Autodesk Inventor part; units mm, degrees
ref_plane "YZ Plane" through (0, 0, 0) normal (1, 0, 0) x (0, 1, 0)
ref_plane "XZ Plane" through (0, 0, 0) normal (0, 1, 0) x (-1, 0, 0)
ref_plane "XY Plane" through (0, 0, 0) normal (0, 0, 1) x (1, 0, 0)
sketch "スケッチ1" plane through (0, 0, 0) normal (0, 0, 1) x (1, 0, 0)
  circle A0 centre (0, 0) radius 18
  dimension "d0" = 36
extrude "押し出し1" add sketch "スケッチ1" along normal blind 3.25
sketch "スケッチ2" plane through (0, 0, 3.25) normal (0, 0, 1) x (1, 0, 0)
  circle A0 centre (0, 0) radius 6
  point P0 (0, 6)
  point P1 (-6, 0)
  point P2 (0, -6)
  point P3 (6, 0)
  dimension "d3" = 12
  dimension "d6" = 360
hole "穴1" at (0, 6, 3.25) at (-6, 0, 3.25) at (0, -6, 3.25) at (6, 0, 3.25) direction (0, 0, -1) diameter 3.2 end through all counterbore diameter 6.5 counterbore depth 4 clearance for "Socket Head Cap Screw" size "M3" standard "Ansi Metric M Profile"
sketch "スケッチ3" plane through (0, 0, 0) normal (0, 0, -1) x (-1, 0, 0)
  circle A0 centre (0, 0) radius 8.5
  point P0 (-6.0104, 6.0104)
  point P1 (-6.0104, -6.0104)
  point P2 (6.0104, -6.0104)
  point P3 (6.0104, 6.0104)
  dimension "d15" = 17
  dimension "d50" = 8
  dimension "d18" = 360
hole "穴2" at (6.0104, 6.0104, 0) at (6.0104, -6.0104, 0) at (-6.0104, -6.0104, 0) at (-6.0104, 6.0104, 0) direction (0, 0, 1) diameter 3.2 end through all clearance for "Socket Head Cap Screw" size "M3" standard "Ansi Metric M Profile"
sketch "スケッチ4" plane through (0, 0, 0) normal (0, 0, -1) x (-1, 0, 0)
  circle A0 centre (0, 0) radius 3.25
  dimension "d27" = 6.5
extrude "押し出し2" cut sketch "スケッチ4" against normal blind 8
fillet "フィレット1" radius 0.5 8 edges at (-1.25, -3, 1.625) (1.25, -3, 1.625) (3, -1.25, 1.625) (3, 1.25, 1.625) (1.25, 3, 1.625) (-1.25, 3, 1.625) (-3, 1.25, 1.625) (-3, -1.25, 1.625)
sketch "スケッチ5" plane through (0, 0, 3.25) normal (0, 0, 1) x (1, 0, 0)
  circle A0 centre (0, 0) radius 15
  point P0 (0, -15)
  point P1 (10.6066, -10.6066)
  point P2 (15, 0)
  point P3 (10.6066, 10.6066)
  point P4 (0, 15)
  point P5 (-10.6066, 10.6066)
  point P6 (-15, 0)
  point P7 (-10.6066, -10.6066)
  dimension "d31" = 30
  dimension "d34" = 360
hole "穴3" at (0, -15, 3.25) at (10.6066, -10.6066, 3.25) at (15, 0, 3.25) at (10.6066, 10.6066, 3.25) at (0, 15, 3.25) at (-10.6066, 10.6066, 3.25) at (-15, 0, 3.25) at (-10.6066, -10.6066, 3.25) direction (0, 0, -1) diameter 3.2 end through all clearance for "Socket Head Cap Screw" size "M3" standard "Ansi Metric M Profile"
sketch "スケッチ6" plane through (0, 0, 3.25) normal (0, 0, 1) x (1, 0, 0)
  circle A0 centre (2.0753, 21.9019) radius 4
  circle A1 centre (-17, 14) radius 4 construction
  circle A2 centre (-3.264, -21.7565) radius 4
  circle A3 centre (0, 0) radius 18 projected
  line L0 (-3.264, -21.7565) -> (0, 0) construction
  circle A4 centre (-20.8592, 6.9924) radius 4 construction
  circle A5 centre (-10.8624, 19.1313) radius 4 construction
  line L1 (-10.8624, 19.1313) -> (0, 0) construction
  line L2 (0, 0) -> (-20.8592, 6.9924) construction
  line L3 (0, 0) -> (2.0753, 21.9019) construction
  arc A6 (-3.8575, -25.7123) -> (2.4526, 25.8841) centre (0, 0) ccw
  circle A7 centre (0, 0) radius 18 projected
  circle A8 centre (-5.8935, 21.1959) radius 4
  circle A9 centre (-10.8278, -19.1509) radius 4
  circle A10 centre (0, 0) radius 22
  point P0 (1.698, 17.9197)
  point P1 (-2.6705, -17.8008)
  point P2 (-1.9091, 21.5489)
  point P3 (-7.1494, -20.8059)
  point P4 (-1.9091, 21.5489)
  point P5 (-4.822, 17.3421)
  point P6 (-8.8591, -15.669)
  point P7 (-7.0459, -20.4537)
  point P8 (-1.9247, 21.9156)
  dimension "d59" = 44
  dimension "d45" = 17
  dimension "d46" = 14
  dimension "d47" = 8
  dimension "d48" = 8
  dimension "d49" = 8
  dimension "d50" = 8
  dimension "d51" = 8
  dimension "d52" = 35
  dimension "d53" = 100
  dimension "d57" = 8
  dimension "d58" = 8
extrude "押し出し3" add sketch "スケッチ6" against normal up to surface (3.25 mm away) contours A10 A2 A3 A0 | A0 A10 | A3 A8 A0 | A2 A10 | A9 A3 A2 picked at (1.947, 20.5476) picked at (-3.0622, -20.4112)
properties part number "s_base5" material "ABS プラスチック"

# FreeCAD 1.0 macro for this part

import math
import FreeCAD as App
import Part
import Sketcher
from FreeCAD import Vector


def edges_at(feature, points):
    """Names of the edges that pass closest to the given points."""
    edges = feature.Shape.Edges
    near = lambda p: min(range(len(edges)), key=lambda i: edges[i].distToShape(Part.Vertex(*p))[0])
    return sorted({f"Edge{near(p) + 1}" for p in points})

doc = App.newDocument("Part")
body = doc.addObject("PartDesign::Body", "Body")

sketch1 = body.newObject("Sketcher::SketchObject", "Sketch")
sketch1.AttachmentSupport = (doc.getObject("XY_Plane"), [""])
sketch1.MapMode = "FlatFace"
sketch1.addGeometry(Part.Circle(Vector(0, 0, 0), Vector(0, 0, 1), 18), False)
sketch1.addConstraint([
    Sketcher.Constraint("Coincident", 0, 3, -1, 1),
    Sketcher.Constraint("Diameter", 0, 36.0),
])
pad1 = body.newObject("PartDesign::Pad", "Pad")
pad1.Profile = sketch1
pad1.Length = 3.25

sketch2 = body.newObject("Sketcher::SketchObject", "Sketch001")
sketch2.AttachmentSupport = (doc.getObject("XY_Plane"), [""])
sketch2.MapMode = "FlatFace"
sketch2.AttachmentOffset = App.Placement(Vector(0, 0, 3.25), App.Rotation())
sketch2.addGeometry([
    Part.Circle(Vector(0, 6, 0), Vector(0, 0, 1), 1.6),
    Part.Circle(Vector(-6, 0, 0), Vector(0, 0, 1), 1.6),
    Part.Circle(Vector(0, -6, 0), Vector(0, 0, 1), 1.6),
    Part.Circle(Vector(6, 0, 0), Vector(0, 0, 1), 1.6),
], False)
sketch2.addConstraint([
    Sketcher.Constraint("Equal", 0, 1),
    Sketcher.Constraint("Equal", 1, 2),
    Sketcher.Constraint("Equal", 2, 3),
    Sketcher.Constraint("Symmetric", 0, 3, 2, 3, -1, 1),
    Sketcher.Constraint("Symmetric", 1, 3, 3, 3, -1, 1),
    Sketcher.Constraint("PointOnObject", 0, 3, -2),
    Sketcher.Constraint("PointOnObject", 1, 3, -1),
    Sketcher.Constraint("Diameter", 0, 3.2),
    Sketcher.Constraint("DistanceY", -1, 1, 0, 3, 6.0),
    Sketcher.Constraint("DistanceX", 1, 3, -1, 1, 6.0),
])
doc.recompute()
hole = body.newObject("PartDesign::Hole", "Hole")
hole.Profile = sketch2
hole.ThreadType = "None"
hole.Diameter = 3.2
hole.DepthType = "ThroughAll"
hole.HoleCutType = "Counterbore"
hole.HoleCutDiameter = 6.5
hole.HoleCutDepth = 4

sketch3 = body.newObject("Sketcher::SketchObject", "Sketch002")
sketch3.AttachmentSupport = (doc.getObject("XY_Plane"), [""])
sketch3.MapMode = "FlatFace"
sketch3.addGeometry([
    Part.Circle(Vector(6, 6, 0), Vector(0, 0, 1), 1.6),
    Part.Circle(Vector(6, -6, 0), Vector(0, 0, 1), 1.6),
    Part.Circle(Vector(-6, -6, 0), Vector(0, 0, 1), 1.6),
    Part.Circle(Vector(-6, 6, 0), Vector(0, 0, 1), 1.6),
], False)
sketch3.addConstraint([
    Sketcher.Constraint("Equal", 0, 1),
    Sketcher.Constraint("Equal", 1, 2),
    Sketcher.Constraint("Equal", 2, 3),
    Sketcher.Constraint("Symmetric", 0, 3, 2, 3, -1, 1),
    Sketcher.Constraint("Symmetric", 1, 3, 3, 3, -1, 1),
    Sketcher.Constraint("Symmetric", 1, 3, 2, 3, -2),
    Sketcher.Constraint("Diameter", 0, 3.2),
    Sketcher.Constraint("DistanceX", -1, 1, 0, 3, 6.0104),
    Sketcher.Constraint("DistanceY", -1, 1, 0, 3, 6.0104),
])
doc.recompute()
hole2 = body.newObject("PartDesign::Hole", "Hole001")
hole2.Profile = sketch3
hole2.ThreadType = "None"
hole2.Diameter = 3.2
hole2.DepthType = "ThroughAll"
hole2.Reversed = True

sketch4 = body.newObject("Sketcher::SketchObject", "Sketch003")
sketch4.AttachmentSupport = (doc.getObject("XY_Plane"), [""])
sketch4.MapMode = "FlatFace"
sketch4.addGeometry(Part.Circle(Vector(0, 0, 0), Vector(0, 0, 1), 3.2), False)
sketch4.addConstraint([
    Sketcher.Constraint("Coincident", 0, 3, -1, 1),
    Sketcher.Constraint("Diameter", 0, 6.5),
])
pocket1 = body.newObject("PartDesign::Pocket", "Pocket")
pocket1.Profile = sketch4
pocket1.Length = 8
pocket1.Reversed = True
doc.recompute()

fillet = body.newObject("PartDesign::Fillet", "Fillet")
fillet.Base = (pocket1, edges_at(pocket1, [
    (-1.25, -3, 1.625),
    (1.25, -3, 1.625),
    (3, -1.25, 1.625),
    (3, 1.25, 1.625),
    (1.25, 3, 1.625),
    (-1.25, 3, 1.625),
    (-3, 1.25, 1.625),
    (-3, -1.25, 1.625),
]))
fillet.Radius = 0.5

sketch5 = body.newObject("Sketcher::SketchObject", "Sketch004")
sketch5.AttachmentSupport = (doc.getObject("XY_Plane"), [""])
sketch5.MapMode = "FlatFace"
sketch5.AttachmentOffset = App.Placement(Vector(0, 0, 3.25), App.Rotation())
sketch5.addGeometry([
    Part.Circle(Vector(0, -15, 0), Vector(0, 0, 1), 1.6),
    Part.Circle(Vector(10.6, -10.6, 0), Vector(0, 0, 1), 1.6),
    Part.Circle(Vector(15, 0, 0), Vector(0, 0, 1), 1.6),
    Part.Circle(Vector(10.6, 10.6, 0), Vector(0, 0, 1), 1.6),
    Part.Circle(Vector(0, 15, 0), Vector(0, 0, 1), 1.6),
    Part.Circle(Vector(-10.6, 10.6, 0), Vector(0, 0, 1), 1.6),
    Part.Circle(Vector(-15, 0, 0), Vector(0, 0, 1), 1.6),
    Part.Circle(Vector(-10.6, -10.6, 0), Vector(0, 0, 1), 1.6),
], False)
sketch5.addConstraint([
    Sketcher.Constraint("Equal", 0, 1),
    Sketcher.Constraint("Equal", 1, 2),
    Sketcher.Constraint("Equal", 2, 3),
    Sketcher.Constraint("Equal", 3, 4),
    Sketcher.Constraint("Equal", 4, 5),
    Sketcher.Constraint("Equal", 5, 6),
    Sketcher.Constraint("Equal", 6, 7),
    Sketcher.Constraint("Symmetric", 0, 3, 4, 3, -1, 1),
    Sketcher.Constraint("Symmetric", 1, 3, 5, 3, -1, 1),
    Sketcher.Constraint("Symmetric", 2, 3, 6, 3, -1, 1),
    Sketcher.Constraint("Symmetric", 3, 3, 7, 3, -1, 1),
    Sketcher.Constraint("Symmetric", 3, 3, 5, 3, -2),
    Sketcher.Constraint("PointOnObject", 0, 3, -2),
    Sketcher.Constraint("PointOnObject", 2, 3, -1),
    Sketcher.Constraint("Diameter", 0, 3.2),
    Sketcher.Constraint("DistanceY", 0, 3, -1, 1, 15.0),
    Sketcher.Constraint("DistanceX", -1, 1, 2, 3, 15.0),
    Sketcher.Constraint("DistanceX", -1, 1, 1, 3, 10.6066),
    Sketcher.Constraint("DistanceY", 1, 3, -1, 1, 10.6066),
])
doc.recompute()
hole3 = body.newObject("PartDesign::Hole", "Hole002")
hole3.Profile = sketch5
hole3.ThreadType = "None"
hole3.Diameter = 3.2
hole3.DepthType = "ThroughAll"

sketch6 = body.newObject("Sketcher::SketchObject", "Sketch005")
sketch6.AttachmentSupport = (doc.getObject("XY_Plane"), [""])
sketch6.MapMode = "FlatFace"
sketch6.AttachmentOffset = App.Placement(Vector(0, 0, 3.25), App.Rotation())
sketch6.addGeometry([
    Part.ArcOfCircle(Part.Circle(Vector(2.08, 21.9, 0), Vector(0, 0, 1), 4), math.radians(179.8), math.radians(185.06)),
    Part.ArcOfCircle(Part.Circle(Vector(-5.89, 21.2, 0), Vector(0, 0, 1), 4), math.radians(-74), math.radians(5)),
    Part.ArcOfCircle(Part.Circle(Vector(0, 0, 0), Vector(0, 0, 1), 18), math.radians(-119), math.radians(106)),
    Part.ArcOfCircle(Part.Circle(Vector(-10.83, -19.15, 0), Vector(0, 0, 1), 4), math.radians(-19), math.radians(61)),
    Part.ArcOfCircle(Part.Circle(Vector(-3.26, -21.76, 0), Vector(0, 0, 1), 4), math.radians(160.99), math.radians(166.25)),
    Part.ArcOfCircle(Part.Circle(Vector(0, 0, 0), Vector(0, 0, 1), 22), math.radians(-109), math.radians(95)),
], False)
sketch6.addConstraint([
    Sketcher.Constraint("Tangent", 0, 2, 1, 2),
    Sketcher.Constraint("Tangent", 1, 1, 2, 2),
    Sketcher.Constraint("Tangent", 2, 1, 3, 2),
    Sketcher.Constraint("Tangent", 3, 1, 4, 1),
    Sketcher.Constraint("Coincident", 4, 2, 5, 1),
    Sketcher.Constraint("Coincident", 5, 2, 0, 1),
    Sketcher.Constraint("Coincident", 2, 3, -1, 1),
    Sketcher.Constraint("Coincident", 5, 3, -1, 1),
    Sketcher.Constraint("Equal", 0, 1),
    Sketcher.Constraint("Equal", 1, 3),
    Sketcher.Constraint("Equal", 3, 4),
    Sketcher.Constraint("Radius", 0, 4.0),
    Sketcher.Constraint("Radius", 5, 22.0),
    Sketcher.Constraint("Radius", 2, 18.0),
    Sketcher.Constraint("DistanceY", -1, 1, 0, 3, 21.902),
    Sketcher.Constraint("DistanceY", -1, 1, 1, 3, 21.196),
    Sketcher.Constraint("DistanceY", 3, 3, -1, 1, 19.151),
    Sketcher.Constraint("DistanceX", 4, 3, -1, 1, 3.264),
])
pad2 = body.newObject("PartDesign::Pad", "Pad001")
pad2.Profile = sketch6
pad2.Length = 3.25
pad2.Reversed = True

doc.recompute()
